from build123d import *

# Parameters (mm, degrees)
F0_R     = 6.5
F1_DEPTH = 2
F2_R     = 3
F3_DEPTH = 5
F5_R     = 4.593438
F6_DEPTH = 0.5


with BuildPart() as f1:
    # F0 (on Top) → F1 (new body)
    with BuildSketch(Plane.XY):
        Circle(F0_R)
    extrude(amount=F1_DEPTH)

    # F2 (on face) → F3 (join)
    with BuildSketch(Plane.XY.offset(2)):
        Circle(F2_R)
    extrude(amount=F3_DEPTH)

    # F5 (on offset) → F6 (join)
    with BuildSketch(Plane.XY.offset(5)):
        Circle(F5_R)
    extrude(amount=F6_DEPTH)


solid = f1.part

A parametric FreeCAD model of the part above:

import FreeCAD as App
import Part
import Sketcher

doc = App.newDocument("Part")
body = doc.addObject("PartDesign::Body", "Body")

sketch1 = body.newObject("Sketcher::SketchObject", "Sketch")
sketch1.AttachmentSupport = (doc.getObject("XY_Plane"), [""])
sketch1.MapMode = "FlatFace"
sketch1.addGeometry(Part.Circle(App.Vector(0, 0, 0), App.Vector(0, 0, 1), 6.5), False)
sketch1.addConstraint([
    Sketcher.Constraint("Coincident", 0, 3, -1, 1),
    Sketcher.Constraint("Diameter", 0, 13.0),
])
pad1 = body.newObject("PartDesign::Pad", "Pad")
pad1.Profile = sketch1
pad1.Length = 2

sketch2 = body.newObject("Sketcher::SketchObject", "Sketch001")
sketch2.AttachmentSupport = (doc.getObject("XY_Plane"), [""])
sketch2.MapMode = "FlatFace"
sketch2.AttachmentOffset = App.Placement(App.Vector(0, 0, 2), App.Rotation())
sketch2.addGeometry(Part.Circle(App.Vector(0, 0, 0), App.Vector(0, 0, 1), 3), False)
sketch2.addConstraint([
    Sketcher.Constraint("Coincident", 0, 3, -1, 1),
    Sketcher.Constraint("Diameter", 0, 6.0),
])
pad2 = body.newObject("PartDesign::Pad", "Pad001")
pad2.Profile = sketch2
pad2.Length = 5

sketch3 = body.newObject("Sketcher::SketchObject", "Sketch002")
sketch3.AttachmentSupport = (doc.getObject("XY_Plane"), [""])
sketch3.MapMode = "FlatFace"
sketch3.AttachmentOffset = App.Placement(App.Vector(0, 0, 5), App.Rotation())
sketch3.addGeometry(Part.Circle(App.Vector(0, 0, 0), App.Vector(0, 0, 1), 4.593438), False)
sketch3.addConstraint([
    Sketcher.Constraint("Coincident", 0, 3, -1, 1),
    Sketcher.Constraint("Diameter", 0, 9.186876),
])
pad3 = body.newObject("PartDesign::Pad", "Pad002")
pad3.Profile = sketch3
pad3.Length = 0.5

doc.recompute()
